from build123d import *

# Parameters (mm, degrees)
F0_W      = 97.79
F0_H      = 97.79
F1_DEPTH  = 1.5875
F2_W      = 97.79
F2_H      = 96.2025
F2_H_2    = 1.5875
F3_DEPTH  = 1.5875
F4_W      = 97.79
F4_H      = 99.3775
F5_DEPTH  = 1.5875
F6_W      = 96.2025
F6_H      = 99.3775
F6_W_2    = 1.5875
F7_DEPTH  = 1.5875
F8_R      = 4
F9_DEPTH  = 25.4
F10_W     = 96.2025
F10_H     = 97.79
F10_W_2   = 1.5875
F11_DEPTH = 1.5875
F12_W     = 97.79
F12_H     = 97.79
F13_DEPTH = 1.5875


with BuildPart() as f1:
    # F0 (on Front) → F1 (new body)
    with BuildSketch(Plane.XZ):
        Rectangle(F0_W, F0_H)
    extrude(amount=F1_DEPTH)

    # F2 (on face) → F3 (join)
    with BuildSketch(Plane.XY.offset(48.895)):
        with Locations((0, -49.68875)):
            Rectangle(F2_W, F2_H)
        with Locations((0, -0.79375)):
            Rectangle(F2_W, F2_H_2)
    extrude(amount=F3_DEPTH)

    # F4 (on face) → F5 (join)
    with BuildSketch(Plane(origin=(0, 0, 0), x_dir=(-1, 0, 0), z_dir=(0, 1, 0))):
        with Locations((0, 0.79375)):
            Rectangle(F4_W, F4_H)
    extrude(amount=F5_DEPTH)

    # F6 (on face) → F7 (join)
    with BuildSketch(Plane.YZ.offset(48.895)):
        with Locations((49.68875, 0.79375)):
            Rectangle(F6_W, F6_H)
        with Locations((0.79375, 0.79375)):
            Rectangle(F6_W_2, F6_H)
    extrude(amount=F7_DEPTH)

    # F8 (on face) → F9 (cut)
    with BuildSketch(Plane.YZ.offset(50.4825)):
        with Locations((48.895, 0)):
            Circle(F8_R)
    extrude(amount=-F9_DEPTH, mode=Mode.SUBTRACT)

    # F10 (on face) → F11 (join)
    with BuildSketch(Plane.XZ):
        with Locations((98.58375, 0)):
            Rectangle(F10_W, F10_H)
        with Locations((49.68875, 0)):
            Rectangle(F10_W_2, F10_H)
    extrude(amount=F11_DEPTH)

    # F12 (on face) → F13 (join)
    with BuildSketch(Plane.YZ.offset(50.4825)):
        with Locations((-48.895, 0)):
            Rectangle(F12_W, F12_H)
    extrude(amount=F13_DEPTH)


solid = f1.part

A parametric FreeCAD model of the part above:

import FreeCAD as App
import Part
import Sketcher

V = App.Vector
Q = App.Units.Quantity


def add_polygon(sketch, points):
    """Adds a closed chain of lines whose ends are joined by coincident constraints."""
    first, n = sketch.GeometryCount, len(points)
    for a, b in zip(points, points[1:] + points[:1]):
        sketch.addGeometry(Part.LineSegment(App.Vector(*a, 0), App.Vector(*b, 0)), False)
    for i in range(n):
        sketch.addConstraint(Sketcher.Constraint("Coincident", first + i, 2, first + (i + 1) % n, 1))

doc = App.newDocument("Part")
body = doc.addObject("PartDesign::Body", "Body")

# Sketch on XZ plane
sketch1 = body.newObject("Sketcher::SketchObject", "Sketch")
sketch1.AttachmentSupport = (doc.getObject("XZ_Plane"), [""])
sketch1.MapMode = "FlatFace"
add_polygon(sketch1, [(-49, 49), (-49, -49), (49, -49), (49, 49)])  # lines 0-3
sketch1.addConstraint(Sketcher.Constraint("Vertical", 0))
sketch1.addConstraint(Sketcher.Constraint("Horizontal", 1))
sketch1.addConstraint(Sketcher.Constraint("Vertical", 2))
sketch1.addConstraint(Sketcher.Constraint("Horizontal", 3))
sketch1.addConstraint(Sketcher.Constraint("Symmetric", 0, 2, 2, 2, -1, 1))
sketch1.addConstraint(Sketcher.Constraint("Equal", 3, 0))
sketch1.addConstraint(Sketcher.Constraint("DistanceX", 1, 1, 1, 2, Q("3.85 in")))
pad1 = body.newObject("PartDesign::Pad", "Pad")
pad1.Profile = sketch1
pad1.Length = Q("0.0625 in")

# Sketch on XY plane
sketch2 = body.newObject("Sketcher::SketchObject", "Sketch001")
sketch2.AttachmentSupport = (doc.getObject("XY_Plane"), [""])
sketch2.MapMode = "FlatFace"
sketch2.AttachmentOffset = App.Placement(V(0, 0, 1.925 * 25.4), App.Rotation())
add_polygon(sketch2, [(-49, -98), (49, -98), (49, 0), (-49, 0)])  # lines 0-3
sketch2.addConstraint(Sketcher.Constraint("Horizontal", 0))
sketch2.addConstraint(Sketcher.Constraint("Vertical", 1))
sketch2.addConstraint(Sketcher.Constraint("Horizontal", 2))
sketch2.addConstraint(Sketcher.Constraint("Vertical", 3))
sketch2.addConstraint(Sketcher.Constraint("Symmetric", 1, 2, 2, 2, -1, 1))
sketch2.addConstraint(Sketcher.Constraint("Equal", 2, 1))
sketch2.addConstraint(Sketcher.Constraint("DistanceX", 0, 1, 0, 2, Q("3.85 in")))
pad2 = body.newObject("PartDesign::Pad", "Pad001")
pad2.Profile = sketch2
pad2.Length = Q("0.0625 in")

# Sketch on XZ plane
sketch3 = body.newObject("Sketcher::SketchObject", "Sketch002")
sketch3.AttachmentSupport = (doc.getObject("XZ_Plane"), [""])
sketch3.MapMode = "FlatFace"
add_polygon(sketch3, [(49, 50), (49, -49), (-49, -49), (-49, 50)])  # lines 0-3
sketch3.addConstraint(Sketcher.Constraint("Vertical", 0))
sketch3.addConstraint(Sketcher.Constraint("Horizontal", 1))
sketch3.addConstraint(Sketcher.Constraint("Vertical", 2))
sketch3.addConstraint(Sketcher.Constraint("Horizontal", 3))
sketch3.addConstraint(Sketcher.Constraint("DistanceX", 1, 2, 1, 1, Q("3.85 in")))
sketch3.addConstraint(Sketcher.Constraint("DistanceY", 0, 2, 0, 1, Q("3.9125 in")))
sketch3.addConstraint(Sketcher.Constraint("DistanceX", -1, 1, 0, 2, Q("1.925 in")))
sketch3.addConstraint(Sketcher.Constraint("DistanceY", 0, 2, -1, 1, Q("1.925 in")))
pad3 = body.newObject("PartDesign::Pad", "Pad002")
pad3.Profile = sketch3
pad3.Length = Q("0.0625 in")
pad3.Reversed = True

# Sketch on YZ plane
sketch4 = body.newObject("Sketcher::SketchObject", "Sketch003")
sketch4.AttachmentSupport = (doc.getObject("YZ_Plane"), [""])
sketch4.MapMode = "FlatFace"
sketch4.AttachmentOffset = App.Placement(V(0, 0, 1.925 * 25.4), App.Rotation())
add_polygon(sketch4, [(98, -49), (98, 50), (0, 50), (0, -49)])  # lines 0-3
sketch4.addConstraint(Sketcher.Constraint("Vertical", 0))
sketch4.addConstraint(Sketcher.Constraint("Horizontal", 1))
sketch4.addConstraint(Sketcher.Constraint("Vertical", 2))
sketch4.addConstraint(Sketcher.Constraint("Horizontal", 3))
sketch4.addConstraint(Sketcher.Constraint("PointOnObject", 1, 2, -2))
sketch4.addConstraint(Sketcher.Constraint("DistanceX", 1, 2, 1, 1, Q("3.85 in")))
sketch4.addConstraint(Sketcher.Constraint("DistanceY", 0, 1, 0, 2, Q("3.9125 in")))
sketch4.addConstraint(Sketcher.Constraint("DistanceY", 2, 2, -1, 1, Q("1.925 in")))
pad4 = body.newObject("PartDesign::Pad", "Pad003")
pad4.Profile = sketch4
pad4.Length = Q("0.0625 in")

# Sketch on YZ plane
sketch5 = body.newObject("Sketcher::SketchObject", "Sketch004")
sketch5.AttachmentSupport = (doc.getObject("YZ_Plane"), [""])
sketch5.MapMode = "FlatFace"
sketch5.AttachmentOffset = App.Placement(V(0, 0, 1.9875 * 25.4), App.Rotation())
sketch5.addGeometry(Part.Circle(V(48.9, 0, 0), V(0, 0, 1), 4), False)
sketch5.addConstraint(Sketcher.Constraint("PointOnObject", 0, 3, -1))
sketch5.addConstraint(Sketcher.Constraint("Diameter", 0, 8.0))
sketch5.addConstraint(Sketcher.Constraint("DistanceX", -1, 1, 0, 3, Q("1.925 in")))
pocket1 = body.newObject("PartDesign::Pocket", "Pocket")
pocket1.Profile = sketch5
pocket1.Length = Q("1 in")

# Sketch on XZ plane
sketch6 = body.newObject("Sketcher::SketchObject", "Sketch005")
sketch6.AttachmentSupport = (doc.getObject("XZ_Plane"), [""])
sketch6.MapMode = "FlatFace"
add_polygon(sketch6, [(147, -49), (147, 49), (49, 49), (49, -49)])  # lines 0-3
sketch6.addConstraint(Sketcher.Constraint("Vertical", 0))
sketch6.addConstraint(Sketcher.Constraint("Horizontal", 1))
sketch6.addConstraint(Sketcher.Constraint("Vertical", 2))
sketch6.addConstraint(Sketcher.Constraint("Horizontal", 3))
sketch6.addConstraint(Sketcher.Constraint("Equal", 3, 0))
sketch6.addConstraint(Sketcher.Constraint("DistanceX", 1, 2, 1, 1, Q("3.85 in")))
sketch6.addConstraint(Sketcher.Constraint("DistanceX", -1, 1, 0, 2, Q("5.775 in")))
sketch6.addConstraint(Sketcher.Constraint("DistanceY", -1, 1, 0, 2, Q("1.925 in")))
pad5 = body.newObject("PartDesign::Pad", "Pad004")
pad5.Profile = sketch6
pad5.Length = Q("0.0625 in")

# Sketch on YZ plane
sketch7 = body.newObject("Sketcher::SketchObject", "Sketch006")
sketch7.AttachmentSupport = (doc.getObject("YZ_Plane"), [""])
sketch7.MapMode = "FlatFace"
sketch7.AttachmentOffset = App.Placement(V(0, 0, 1.9875 * 25.4), App.Rotation())
add_polygon(sketch7, [(-98, 49), (-98, -49), (0, -49), (0, 49)])  # lines 0-3
sketch7.addConstraint(Sketcher.Constraint("Vertical", 0))
sketch7.addConstraint(Sketcher.Constraint("Horizontal", 1))
sketch7.addConstraint(Sketcher.Constraint("Vertical", 2))
sketch7.addConstraint(Sketcher.Constraint("Horizontal", 3))
sketch7.addConstraint(Sketcher.Constraint("Symmetric", 1, 2, 2, 2, -1, 1))
sketch7.addConstraint(Sketcher.Constraint("Equal", 3, 0))
sketch7.addConstraint(Sketcher.Constraint("DistanceX", 1, 1, 1, 2, Q("3.85 in")))
pad6 = body.newObject("PartDesign::Pad", "Pad005")
pad6.Profile = sketch7
pad6.Length = Q("0.0625 in")

doc.recompute()
